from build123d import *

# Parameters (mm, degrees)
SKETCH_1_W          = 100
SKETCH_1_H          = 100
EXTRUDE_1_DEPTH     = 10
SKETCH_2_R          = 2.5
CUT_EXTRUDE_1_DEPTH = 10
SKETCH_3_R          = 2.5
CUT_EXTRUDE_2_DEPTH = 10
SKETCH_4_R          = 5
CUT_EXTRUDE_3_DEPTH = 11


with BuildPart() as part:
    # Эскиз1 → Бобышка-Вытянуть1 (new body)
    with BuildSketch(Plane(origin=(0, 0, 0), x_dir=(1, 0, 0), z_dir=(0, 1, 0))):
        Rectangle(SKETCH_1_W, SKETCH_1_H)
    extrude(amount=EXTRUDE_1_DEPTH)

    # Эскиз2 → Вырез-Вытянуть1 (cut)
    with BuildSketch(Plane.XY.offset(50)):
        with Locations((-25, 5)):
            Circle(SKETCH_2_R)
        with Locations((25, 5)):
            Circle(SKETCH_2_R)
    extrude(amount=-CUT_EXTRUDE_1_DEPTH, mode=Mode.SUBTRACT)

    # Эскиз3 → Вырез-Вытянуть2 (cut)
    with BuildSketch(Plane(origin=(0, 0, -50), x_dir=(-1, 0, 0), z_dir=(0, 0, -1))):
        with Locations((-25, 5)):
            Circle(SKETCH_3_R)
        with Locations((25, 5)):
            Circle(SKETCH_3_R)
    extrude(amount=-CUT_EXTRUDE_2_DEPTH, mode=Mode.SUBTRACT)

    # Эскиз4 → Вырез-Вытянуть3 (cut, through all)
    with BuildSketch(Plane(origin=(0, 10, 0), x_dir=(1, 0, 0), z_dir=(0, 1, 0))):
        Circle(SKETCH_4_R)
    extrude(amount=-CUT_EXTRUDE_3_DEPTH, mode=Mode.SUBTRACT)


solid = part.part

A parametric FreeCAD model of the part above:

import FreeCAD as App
import Part
import Sketcher

V = App.Vector
Q = App.Units.Quantity

doc = App.newDocument("Part")
body = doc.addObject("PartDesign::Body", "Body")

sketch1 = body.newObject("Sketcher::SketchObject", "Sketch")
sketch1.AttachmentSupport = (doc.getObject("XZ_Plane"), [""])
sketch1.MapMode = "FlatFace"
sketch1.addGeometry(Part.LineSegment(V(-50, -50, 0), V(-50, 50, 0)), False)
sketch1.addGeometry(Part.LineSegment(V(-50, 50, 0), V(50, 50, 0)), False)
sketch1.addGeometry(Part.LineSegment(V(50, 50, 0), V(50, -50, 0)), False)
sketch1.addGeometry(Part.LineSegment(V(50, -50, 0), V(-50, -50, 0)), False)
sketch1.addConstraint(Sketcher.Constraint("Coincident", 0, 2, 1, 1))
sketch1.addConstraint(Sketcher.Constraint("Coincident", 1, 2, 2, 1))
sketch1.addConstraint(Sketcher.Constraint("Coincident", 2, 2, 3, 1))
sketch1.addConstraint(Sketcher.Constraint("Coincident", 3, 2, 0, 1))
sketch1.addConstraint(Sketcher.Constraint("Vertical", 0))
sketch1.addConstraint(Sketcher.Constraint("Horizontal", 1))
sketch1.addConstraint(Sketcher.Constraint("Vertical", 2))
sketch1.addConstraint(Sketcher.Constraint("Horizontal", 3))
sketch1.addConstraint(Sketcher.Constraint("Symmetric", 0, 2, 2, 2, -1, 1))
sketch1.addConstraint(Sketcher.Constraint("Equal", 3, 0))
sketch1.addConstraint(Sketcher.Constraint("DistanceX", 1, 1, 1, 2, Q("100 mm")))
pad1 = body.newObject("PartDesign::Pad", "Pad")
pad1.Profile = sketch1
pad1.Length = 10
pad1.Reversed = True

sketch2 = body.newObject("Sketcher::SketchObject", "Sketch001")
sketch2.AttachmentSupport = (doc.getObject("XY_Plane"), [""])
sketch2.MapMode = "FlatFace"
sketch2.AttachmentOffset = App.Placement(V(0, 0, 50), App.Rotation())
sketch2.addGeometry(Part.Circle(V(-25, 5, 0), V(0, 0, 1), 2.5), False)
sketch2.addGeometry(Part.Circle(V(25, 5, 0), V(0, 0, 1), 2.5), False)
sketch2.addConstraint(Sketcher.Constraint("Equal", 0, 1))
sketch2.addConstraint(Sketcher.Constraint("Symmetric", 0, 3, 1, 3, -2))
sketch2.addConstraint(Sketcher.Constraint("Diameter", 0, Q("5 mm")))
sketch2.addConstraint(Sketcher.Constraint("DistanceX", 0, 3, -1, 1, Q("25 mm")))
sketch2.addConstraint(Sketcher.Constraint("DistanceY", -1, 1, 0, 3, Q("5 mm")))
pocket1 = body.newObject("PartDesign::Pocket", "Pocket")
pocket1.Profile = sketch2
pocket1.Length = 10

sketch3 = body.newObject("Sketcher::SketchObject", "Sketch002")
sketch3.AttachmentSupport = (doc.getObject("XY_Plane"), [""])
sketch3.MapMode = "FlatFace"
sketch3.AttachmentOffset = App.Placement(V(0, 0, -50), App.Rotation())
sketch3.addGeometry(Part.Circle(V(25, 5, 0), V(0, 0, 1), 2.5), False)
sketch3.addGeometry(Part.Circle(V(-25, 5, 0), V(0, 0, 1), 2.5), False)
sketch3.addConstraint(Sketcher.Constraint("Equal", 0, 1))
sketch3.addConstraint(Sketcher.Constraint("Symmetric", 0, 3, 1, 3, -2))
sketch3.addConstraint(Sketcher.Constraint("Diameter", 0, Q("5 mm")))
sketch3.addConstraint(Sketcher.Constraint("DistanceX", -1, 1, 0, 3, Q("25 mm")))
sketch3.addConstraint(Sketcher.Constraint("DistanceY", -1, 1, 0, 3, Q("5 mm")))
pocket2 = body.newObject("PartDesign::Pocket", "Pocket001")
pocket2.Profile = sketch3
pocket2.Length = 10
pocket2.Reversed = True

sketch4 = body.newObject("Sketcher::SketchObject", "Sketch003")
sketch4.AttachmentSupport = (doc.getObject("XZ_Plane"), [""])
sketch4.MapMode = "FlatFace"
sketch4.AttachmentOffset = App.Placement(V(0, 0, -10), App.Rotation())
sketch4.addGeometry(Part.Circle(V(0, 0, 0), V(0, 0, 1), 5), False)
sketch4.addConstraint(Sketcher.Constraint("Coincident", 0, 3, -1, 1))
sketch4.addConstraint(Sketcher.Constraint("Diameter", 0, Q("10 mm")))
pocket3 = body.newObject("PartDesign::Pocket", "Pocket002")
pocket3.Profile = sketch4
pocket3.Type = "ThroughAll"
pocket3.Reversed = True

doc.recompute()
